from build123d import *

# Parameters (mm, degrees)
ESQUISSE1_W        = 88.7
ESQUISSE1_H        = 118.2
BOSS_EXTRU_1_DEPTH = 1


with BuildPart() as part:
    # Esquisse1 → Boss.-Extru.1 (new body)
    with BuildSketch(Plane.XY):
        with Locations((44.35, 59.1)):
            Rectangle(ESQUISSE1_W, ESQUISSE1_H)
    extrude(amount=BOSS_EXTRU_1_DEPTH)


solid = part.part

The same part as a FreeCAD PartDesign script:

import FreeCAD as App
import Part
import Sketcher


def add_polygon(sketch, points):
    """Adds a closed chain of lines whose ends are joined by coincident constraints."""
    first, n = sketch.GeometryCount, len(points)
    for a, b in zip(points, points[1:] + points[:1]):
        sketch.addGeometry(Part.LineSegment(App.Vector(*a, 0), App.Vector(*b, 0)), False)
    for i in range(n):
        sketch.addConstraint(Sketcher.Constraint("Coincident", first + i, 2, first + (i + 1) % n, 1))

doc = App.newDocument("Part")
params = doc.addObject("Spreadsheet::Sheet", "Params")
for row, (alias, value) in enumerate([
    ("sketch1_width", "88.7 mm"),
    ("sketch1_height", "118.2 mm"),
    ("pad1_length", "1 mm"),
], start=1):
    params.set(f"A{row}", alias)
    params.set(f"B{row}", "=" + value)
    params.setAlias(f"B{row}", alias)

body = doc.addObject("PartDesign::Body", "Body")

# Sketch on XY plane
sketch1 = body.newObject("Sketcher::SketchObject", "Sketch")
sketch1.AttachmentSupport = (doc.getObject("XY_Plane"), [""])
sketch1.MapMode = "FlatFace"
add_polygon(sketch1, [(0, 118), (0, 0), (89, 0), (89, 118)])  # lines 0-3
sketch1.addConstraint([
    Sketcher.Constraint("Vertical", 0),
    Sketcher.Constraint("Horizontal", 1),
    Sketcher.Constraint("Vertical", 2),
    Sketcher.Constraint("Horizontal", 3),
    Sketcher.Constraint("Coincident", 0, 2, -1, 1),
    Sketcher.Constraint("DistanceX", 1, 1, 1, 2, 88.7),
    Sketcher.Constraint("DistanceY", 0, 2, 0, 1, 118.2),
])
sketch1.setExpression("Constraints[9]", "Params.sketch1_width")
sketch1.setExpression("Constraints[10]", "Params.sketch1_height")
pad1 = body.newObject("PartDesign::Pad", "Pad")
pad1.Profile = sketch1
pad1.setExpression("Length", "Params.pad1_length")

doc.recompute()
